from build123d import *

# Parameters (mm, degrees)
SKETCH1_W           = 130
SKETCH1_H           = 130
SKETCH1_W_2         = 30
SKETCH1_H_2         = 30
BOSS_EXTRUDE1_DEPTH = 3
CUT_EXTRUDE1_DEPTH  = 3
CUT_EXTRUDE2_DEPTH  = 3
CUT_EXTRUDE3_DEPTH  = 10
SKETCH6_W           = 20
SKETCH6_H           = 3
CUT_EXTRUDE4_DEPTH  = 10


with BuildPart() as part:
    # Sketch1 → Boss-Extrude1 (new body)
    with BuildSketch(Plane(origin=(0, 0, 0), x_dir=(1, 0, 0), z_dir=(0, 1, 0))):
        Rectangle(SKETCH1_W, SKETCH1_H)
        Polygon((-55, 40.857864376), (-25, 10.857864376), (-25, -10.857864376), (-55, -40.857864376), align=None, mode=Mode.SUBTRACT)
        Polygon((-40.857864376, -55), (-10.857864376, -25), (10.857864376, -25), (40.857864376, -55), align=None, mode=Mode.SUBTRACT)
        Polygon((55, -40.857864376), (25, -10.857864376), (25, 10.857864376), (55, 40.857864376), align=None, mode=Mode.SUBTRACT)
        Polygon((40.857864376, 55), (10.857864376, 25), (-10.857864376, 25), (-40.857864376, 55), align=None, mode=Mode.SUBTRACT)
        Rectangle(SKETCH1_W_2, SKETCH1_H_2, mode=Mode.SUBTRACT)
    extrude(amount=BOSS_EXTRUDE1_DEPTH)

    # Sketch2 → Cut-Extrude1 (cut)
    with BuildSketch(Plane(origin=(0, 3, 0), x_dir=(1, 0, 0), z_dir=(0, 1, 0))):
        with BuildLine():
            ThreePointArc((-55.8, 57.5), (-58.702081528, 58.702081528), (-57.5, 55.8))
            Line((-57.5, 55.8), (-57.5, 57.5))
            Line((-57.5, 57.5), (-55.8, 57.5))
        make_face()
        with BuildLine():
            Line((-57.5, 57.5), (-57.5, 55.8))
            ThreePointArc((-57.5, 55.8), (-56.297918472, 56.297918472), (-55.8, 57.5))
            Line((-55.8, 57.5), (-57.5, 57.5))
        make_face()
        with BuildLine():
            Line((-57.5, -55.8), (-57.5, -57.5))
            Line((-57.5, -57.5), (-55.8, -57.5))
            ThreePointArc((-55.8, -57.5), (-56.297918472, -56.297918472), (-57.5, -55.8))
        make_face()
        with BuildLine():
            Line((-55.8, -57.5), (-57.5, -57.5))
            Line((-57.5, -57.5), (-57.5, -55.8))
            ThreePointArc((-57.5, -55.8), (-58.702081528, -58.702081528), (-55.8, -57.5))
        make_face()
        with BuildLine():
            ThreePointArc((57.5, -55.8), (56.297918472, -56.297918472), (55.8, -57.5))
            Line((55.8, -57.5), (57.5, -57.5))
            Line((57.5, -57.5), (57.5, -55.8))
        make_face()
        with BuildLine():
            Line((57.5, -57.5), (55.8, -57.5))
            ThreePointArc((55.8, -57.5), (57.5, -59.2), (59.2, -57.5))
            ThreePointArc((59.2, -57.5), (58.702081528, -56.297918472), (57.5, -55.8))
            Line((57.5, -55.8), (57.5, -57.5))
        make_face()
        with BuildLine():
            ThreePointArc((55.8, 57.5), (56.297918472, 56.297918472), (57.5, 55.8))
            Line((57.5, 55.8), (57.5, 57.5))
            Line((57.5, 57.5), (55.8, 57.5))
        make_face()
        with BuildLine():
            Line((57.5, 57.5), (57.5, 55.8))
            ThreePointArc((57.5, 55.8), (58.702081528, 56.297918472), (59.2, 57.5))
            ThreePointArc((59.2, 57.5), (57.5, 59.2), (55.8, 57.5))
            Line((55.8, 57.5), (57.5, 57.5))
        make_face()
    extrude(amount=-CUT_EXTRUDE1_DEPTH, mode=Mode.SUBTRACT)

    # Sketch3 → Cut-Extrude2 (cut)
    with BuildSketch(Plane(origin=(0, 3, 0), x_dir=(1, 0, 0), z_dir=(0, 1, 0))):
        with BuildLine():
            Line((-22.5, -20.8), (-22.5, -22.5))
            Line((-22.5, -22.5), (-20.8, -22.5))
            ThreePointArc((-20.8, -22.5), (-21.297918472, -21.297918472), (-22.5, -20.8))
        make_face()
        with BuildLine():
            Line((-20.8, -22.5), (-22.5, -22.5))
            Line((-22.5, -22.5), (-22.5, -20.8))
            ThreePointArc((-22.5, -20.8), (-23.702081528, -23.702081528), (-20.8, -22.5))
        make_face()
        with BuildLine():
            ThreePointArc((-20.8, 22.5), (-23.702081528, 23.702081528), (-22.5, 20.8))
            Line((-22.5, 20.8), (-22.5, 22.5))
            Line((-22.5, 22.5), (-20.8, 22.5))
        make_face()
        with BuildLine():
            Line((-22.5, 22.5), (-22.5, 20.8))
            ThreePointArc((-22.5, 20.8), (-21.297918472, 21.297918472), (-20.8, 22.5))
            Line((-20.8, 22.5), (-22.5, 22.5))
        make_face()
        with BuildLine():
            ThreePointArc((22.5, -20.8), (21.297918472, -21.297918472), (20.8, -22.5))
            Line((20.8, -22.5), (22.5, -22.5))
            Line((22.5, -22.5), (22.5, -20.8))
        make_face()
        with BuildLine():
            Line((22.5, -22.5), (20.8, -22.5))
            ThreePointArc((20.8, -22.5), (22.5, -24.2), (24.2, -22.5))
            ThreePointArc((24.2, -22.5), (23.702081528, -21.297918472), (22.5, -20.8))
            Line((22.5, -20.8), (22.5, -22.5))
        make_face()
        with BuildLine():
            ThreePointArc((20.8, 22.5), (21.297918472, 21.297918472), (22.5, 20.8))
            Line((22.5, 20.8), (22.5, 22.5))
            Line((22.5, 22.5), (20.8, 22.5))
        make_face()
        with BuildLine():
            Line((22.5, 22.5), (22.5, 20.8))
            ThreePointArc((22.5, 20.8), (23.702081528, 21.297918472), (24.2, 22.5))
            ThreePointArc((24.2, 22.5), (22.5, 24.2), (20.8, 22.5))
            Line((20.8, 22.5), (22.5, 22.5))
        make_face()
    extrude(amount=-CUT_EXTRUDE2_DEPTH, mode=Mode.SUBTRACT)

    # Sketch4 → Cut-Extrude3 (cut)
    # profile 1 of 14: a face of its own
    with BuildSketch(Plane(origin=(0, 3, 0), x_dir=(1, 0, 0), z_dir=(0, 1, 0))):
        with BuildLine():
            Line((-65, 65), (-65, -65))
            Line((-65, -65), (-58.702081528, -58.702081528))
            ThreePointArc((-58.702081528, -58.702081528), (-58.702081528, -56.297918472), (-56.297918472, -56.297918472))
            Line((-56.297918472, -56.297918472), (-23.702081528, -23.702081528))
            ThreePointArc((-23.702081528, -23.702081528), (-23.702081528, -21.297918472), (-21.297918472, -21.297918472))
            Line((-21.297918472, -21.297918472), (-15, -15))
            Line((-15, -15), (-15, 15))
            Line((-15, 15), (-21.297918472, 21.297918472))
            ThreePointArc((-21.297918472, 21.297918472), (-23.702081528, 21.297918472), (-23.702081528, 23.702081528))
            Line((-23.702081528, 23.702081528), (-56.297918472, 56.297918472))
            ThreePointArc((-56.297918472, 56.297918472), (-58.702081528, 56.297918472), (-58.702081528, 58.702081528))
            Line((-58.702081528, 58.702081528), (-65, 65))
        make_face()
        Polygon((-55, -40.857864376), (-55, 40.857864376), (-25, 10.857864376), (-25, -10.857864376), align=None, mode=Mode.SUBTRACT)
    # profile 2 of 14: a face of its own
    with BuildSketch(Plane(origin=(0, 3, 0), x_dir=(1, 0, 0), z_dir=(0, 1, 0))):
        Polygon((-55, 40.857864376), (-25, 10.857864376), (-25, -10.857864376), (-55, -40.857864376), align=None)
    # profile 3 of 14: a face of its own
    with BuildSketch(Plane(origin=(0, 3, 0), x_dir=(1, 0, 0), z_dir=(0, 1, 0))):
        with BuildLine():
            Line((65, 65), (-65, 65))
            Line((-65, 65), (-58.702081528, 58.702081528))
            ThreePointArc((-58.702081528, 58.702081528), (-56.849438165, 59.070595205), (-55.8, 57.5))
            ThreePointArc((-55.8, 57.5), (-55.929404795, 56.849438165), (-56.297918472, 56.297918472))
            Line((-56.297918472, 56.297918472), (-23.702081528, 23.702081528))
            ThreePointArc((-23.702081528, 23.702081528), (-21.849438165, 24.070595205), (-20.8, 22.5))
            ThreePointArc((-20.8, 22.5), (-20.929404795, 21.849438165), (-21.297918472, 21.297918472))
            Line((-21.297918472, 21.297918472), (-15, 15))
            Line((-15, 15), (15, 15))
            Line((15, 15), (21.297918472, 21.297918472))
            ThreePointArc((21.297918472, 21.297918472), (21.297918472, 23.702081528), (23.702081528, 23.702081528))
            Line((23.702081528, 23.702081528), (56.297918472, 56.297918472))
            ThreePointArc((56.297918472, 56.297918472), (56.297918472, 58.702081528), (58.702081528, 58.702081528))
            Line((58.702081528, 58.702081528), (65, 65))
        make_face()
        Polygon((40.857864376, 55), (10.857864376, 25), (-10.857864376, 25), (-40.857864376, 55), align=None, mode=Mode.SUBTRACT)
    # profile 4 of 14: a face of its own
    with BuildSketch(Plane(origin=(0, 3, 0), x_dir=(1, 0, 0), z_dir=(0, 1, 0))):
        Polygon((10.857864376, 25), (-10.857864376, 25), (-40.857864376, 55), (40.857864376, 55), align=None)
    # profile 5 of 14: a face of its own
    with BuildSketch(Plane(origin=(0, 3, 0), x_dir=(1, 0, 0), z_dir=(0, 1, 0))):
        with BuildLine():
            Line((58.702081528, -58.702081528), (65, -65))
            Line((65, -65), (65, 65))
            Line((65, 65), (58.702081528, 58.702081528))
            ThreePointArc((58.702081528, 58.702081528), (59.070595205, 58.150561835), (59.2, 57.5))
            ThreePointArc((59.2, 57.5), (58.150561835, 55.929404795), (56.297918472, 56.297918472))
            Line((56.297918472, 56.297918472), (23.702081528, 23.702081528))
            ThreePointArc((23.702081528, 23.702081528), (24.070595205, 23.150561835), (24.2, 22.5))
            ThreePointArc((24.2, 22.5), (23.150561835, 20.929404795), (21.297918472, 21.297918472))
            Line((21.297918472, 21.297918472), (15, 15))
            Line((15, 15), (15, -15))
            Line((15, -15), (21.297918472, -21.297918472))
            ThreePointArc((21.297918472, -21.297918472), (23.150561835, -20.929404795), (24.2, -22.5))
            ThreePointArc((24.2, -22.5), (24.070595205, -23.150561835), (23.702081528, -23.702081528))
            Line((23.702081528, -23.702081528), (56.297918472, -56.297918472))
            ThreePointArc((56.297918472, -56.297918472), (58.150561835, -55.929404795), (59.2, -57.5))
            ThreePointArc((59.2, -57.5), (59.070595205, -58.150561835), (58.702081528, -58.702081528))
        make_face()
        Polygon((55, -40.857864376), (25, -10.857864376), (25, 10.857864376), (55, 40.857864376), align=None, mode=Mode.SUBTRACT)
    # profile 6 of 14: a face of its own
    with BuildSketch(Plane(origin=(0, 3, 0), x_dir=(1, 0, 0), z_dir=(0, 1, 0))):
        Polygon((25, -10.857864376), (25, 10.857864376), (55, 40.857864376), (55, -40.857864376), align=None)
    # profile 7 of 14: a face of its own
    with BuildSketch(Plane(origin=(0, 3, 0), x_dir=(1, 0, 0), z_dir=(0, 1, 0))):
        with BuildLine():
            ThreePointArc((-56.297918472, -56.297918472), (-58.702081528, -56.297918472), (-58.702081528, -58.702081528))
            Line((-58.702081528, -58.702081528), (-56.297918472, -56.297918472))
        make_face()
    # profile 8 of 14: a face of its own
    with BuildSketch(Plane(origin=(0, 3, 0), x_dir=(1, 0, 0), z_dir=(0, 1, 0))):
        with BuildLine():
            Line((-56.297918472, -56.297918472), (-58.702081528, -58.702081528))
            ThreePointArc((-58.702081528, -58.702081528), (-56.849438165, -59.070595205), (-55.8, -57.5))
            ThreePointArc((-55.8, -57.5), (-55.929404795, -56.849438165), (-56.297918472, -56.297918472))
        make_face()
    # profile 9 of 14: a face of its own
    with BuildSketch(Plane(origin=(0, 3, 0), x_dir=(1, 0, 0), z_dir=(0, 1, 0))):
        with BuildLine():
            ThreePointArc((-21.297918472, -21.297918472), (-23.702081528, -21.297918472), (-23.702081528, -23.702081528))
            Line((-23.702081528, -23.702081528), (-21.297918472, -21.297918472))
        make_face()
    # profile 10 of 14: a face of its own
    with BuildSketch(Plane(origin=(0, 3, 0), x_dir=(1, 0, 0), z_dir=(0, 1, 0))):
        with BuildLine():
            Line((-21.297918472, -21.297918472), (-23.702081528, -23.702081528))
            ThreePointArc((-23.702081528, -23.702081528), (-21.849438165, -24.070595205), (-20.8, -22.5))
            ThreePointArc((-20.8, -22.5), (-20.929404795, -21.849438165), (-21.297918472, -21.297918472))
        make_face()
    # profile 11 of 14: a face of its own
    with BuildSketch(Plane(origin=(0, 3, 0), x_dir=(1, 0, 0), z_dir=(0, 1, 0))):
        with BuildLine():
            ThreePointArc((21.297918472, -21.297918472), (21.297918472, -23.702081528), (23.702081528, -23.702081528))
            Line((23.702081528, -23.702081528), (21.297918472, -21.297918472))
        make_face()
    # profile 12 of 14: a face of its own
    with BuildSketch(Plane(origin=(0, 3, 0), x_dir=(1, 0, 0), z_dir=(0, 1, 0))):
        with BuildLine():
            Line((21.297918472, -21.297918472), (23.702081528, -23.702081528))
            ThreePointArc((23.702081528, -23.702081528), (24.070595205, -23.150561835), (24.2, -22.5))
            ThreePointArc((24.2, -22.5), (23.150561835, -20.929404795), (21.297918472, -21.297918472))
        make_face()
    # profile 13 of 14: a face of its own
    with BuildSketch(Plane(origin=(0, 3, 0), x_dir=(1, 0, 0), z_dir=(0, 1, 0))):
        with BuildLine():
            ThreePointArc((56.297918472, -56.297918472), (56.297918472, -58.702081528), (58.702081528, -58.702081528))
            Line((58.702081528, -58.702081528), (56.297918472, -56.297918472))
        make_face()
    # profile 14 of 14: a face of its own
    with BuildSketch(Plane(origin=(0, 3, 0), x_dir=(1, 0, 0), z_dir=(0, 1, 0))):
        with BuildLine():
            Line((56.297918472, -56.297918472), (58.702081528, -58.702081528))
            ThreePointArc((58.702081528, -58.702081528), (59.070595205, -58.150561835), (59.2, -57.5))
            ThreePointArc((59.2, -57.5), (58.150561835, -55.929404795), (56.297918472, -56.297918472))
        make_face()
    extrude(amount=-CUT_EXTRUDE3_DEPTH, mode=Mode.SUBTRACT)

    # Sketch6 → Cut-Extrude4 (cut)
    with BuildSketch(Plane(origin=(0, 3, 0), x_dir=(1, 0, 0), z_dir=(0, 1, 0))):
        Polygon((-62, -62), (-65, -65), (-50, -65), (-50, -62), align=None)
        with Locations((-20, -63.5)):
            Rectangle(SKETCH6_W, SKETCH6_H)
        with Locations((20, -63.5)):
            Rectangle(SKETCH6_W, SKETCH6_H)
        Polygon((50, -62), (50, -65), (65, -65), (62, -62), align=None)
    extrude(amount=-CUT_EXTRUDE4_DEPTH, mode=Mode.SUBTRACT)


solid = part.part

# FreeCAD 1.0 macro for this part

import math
import FreeCAD as App
import Part
import Sketcher
Q = App.Units.Quantity

doc = App.newDocument("Part")
body = doc.addObject("PartDesign::Body", "Body")

sketch1 = body.newObject("Sketcher::SketchObject", "Sketch")
sketch1.AttachmentSupport = (doc.getObject("XZ_Plane"), [""])
sketch1.MapMode = "FlatFace"
sketch1.addGeometry([
    Part.LineSegment(App.Vector(-65, -65, 0), App.Vector(-65, 65, 0)),
    Part.LineSegment(App.Vector(-65, 65, 0), App.Vector(65, 65, 0)),
    Part.LineSegment(App.Vector(65, 65, 0), App.Vector(65, -65, 0)),
    Part.LineSegment(App.Vector(65, -65, 0), App.Vector(-65, -65, 0)),
    Part.LineSegment(App.Vector(40.857864, 55, 0), App.Vector(-40.857864, 55, 0)),
    Part.LineSegment(App.Vector(-40.857864, 55, 0), App.Vector(-10.857864, 25, 0)),
    Part.LineSegment(App.Vector(-10.857864, 25, 0), App.Vector(10.857864, 25, 0)),
    Part.LineSegment(App.Vector(10.857864, 25, 0), App.Vector(40.857864, 55, 0)),
    Part.LineSegment(App.Vector(-55, 40.857864, 0), App.Vector(-55, -40.857864, 0)),
    Part.LineSegment(App.Vector(-55, -40.857864, 0), App.Vector(-25, -10.857864, 0)),
    Part.LineSegment(App.Vector(-25, -10.857864, 0), App.Vector(-25, 10.857864, 0)),
    Part.LineSegment(App.Vector(-25, 10.857864, 0), App.Vector(-55, 40.857864, 0)),
    Part.LineSegment(App.Vector(15, 15, 0), App.Vector(-15, 15, 0)),
    Part.LineSegment(App.Vector(-15, 15, 0), App.Vector(-15, -15, 0)),
    Part.LineSegment(App.Vector(-15, -15, 0), App.Vector(15, -15, 0)),
    Part.LineSegment(App.Vector(15, -15, 0), App.Vector(15, 15, 0)),
    Part.LineSegment(App.Vector(55, -40.857864, 0), App.Vector(55, 40.857864, 0)),
    Part.LineSegment(App.Vector(55, 40.857864, 0), App.Vector(25, 10.857864, 0)),
    Part.LineSegment(App.Vector(25, 10.857864, 0), App.Vector(25, -10.857864, 0)),
    Part.LineSegment(App.Vector(25, -10.857864, 0), App.Vector(55, -40.857864, 0)),
    Part.LineSegment(App.Vector(-40.857864, -55, 0), App.Vector(40.857864, -55, 0)),
    Part.LineSegment(App.Vector(40.857864, -55, 0), App.Vector(10.857864, -25, 0)),
    Part.LineSegment(App.Vector(10.857864, -25, 0), App.Vector(-10.857864, -25, 0)),
    Part.LineSegment(App.Vector(-10.857864, -25, 0), App.Vector(-40.857864, -55, 0)),
], False)
sketch1.addConstraint([
    Sketcher.Constraint("Coincident", 0, 2, 1, 1),
    Sketcher.Constraint("Coincident", 1, 2, 2, 1),
    Sketcher.Constraint("Coincident", 2, 2, 3, 1),
    Sketcher.Constraint("Coincident", 3, 2, 0, 1),
    Sketcher.Constraint("Coincident", 4, 2, 5, 1),
    Sketcher.Constraint("Coincident", 5, 2, 6, 1),
    Sketcher.Constraint("Coincident", 6, 2, 7, 1),
    Sketcher.Constraint("Coincident", 7, 2, 4, 1),
    Sketcher.Constraint("Coincident", 8, 2, 9, 1),
    Sketcher.Constraint("Coincident", 9, 2, 10, 1),
    Sketcher.Constraint("Coincident", 10, 2, 11, 1),
    Sketcher.Constraint("Coincident", 11, 2, 8, 1),
    Sketcher.Constraint("Coincident", 12, 2, 13, 1),
    Sketcher.Constraint("Coincident", 13, 2, 14, 1),
    Sketcher.Constraint("Coincident", 14, 2, 15, 1),
    Sketcher.Constraint("Coincident", 15, 2, 12, 1),
    Sketcher.Constraint("Coincident", 16, 2, 17, 1),
    Sketcher.Constraint("Coincident", 17, 2, 18, 1),
    Sketcher.Constraint("Coincident", 18, 2, 19, 1),
    Sketcher.Constraint("Coincident", 19, 2, 16, 1),
    Sketcher.Constraint("Coincident", 20, 2, 21, 1),
    Sketcher.Constraint("Coincident", 21, 2, 22, 1),
    Sketcher.Constraint("Coincident", 22, 2, 23, 1),
    Sketcher.Constraint("Coincident", 23, 2, 20, 1),
    Sketcher.Constraint("Vertical", 0),
    Sketcher.Constraint("Horizontal", 1),
    Sketcher.Constraint("Vertical", 2),
    Sketcher.Constraint("Horizontal", 3),
    Sketcher.Constraint("Horizontal", 4),
    Sketcher.Constraint("Horizontal", 6),
    Sketcher.Constraint("Vertical", 8),
    Sketcher.Constraint("Vertical", 10),
    Sketcher.Constraint("Horizontal", 12),
    Sketcher.Constraint("Vertical", 13),
    Sketcher.Constraint("Horizontal", 14),
    Sketcher.Constraint("Vertical", 15),
    Sketcher.Constraint("Vertical", 16),
    Sketcher.Constraint("Vertical", 18),
    Sketcher.Constraint("Horizontal", 20),
    Sketcher.Constraint("Horizontal", 22),
    Sketcher.Constraint("Symmetric", 0, 2, 2, 2, -1, 1),
    Sketcher.Constraint("Symmetric", 12, 2, 14, 2, -1, 1),
    Sketcher.Constraint("Symmetric", 8, 2, 16, 2, -1, 1),
    Sketcher.Constraint("Symmetric", 9, 2, 17, 2, -1, 1),
    Sketcher.Constraint("Symmetric", 4, 2, 20, 2, -1, 1),
    Sketcher.Constraint("Symmetric", 5, 2, 21, 2, -1, 1),
    Sketcher.Constraint("Perpendicular", 5, 7),
    Sketcher.Constraint("Parallel", 7, 9),
    Sketcher.Constraint("Perpendicular", 9, 11),
    Sketcher.Constraint("Perpendicular", 17, 19),
    Sketcher.Constraint("Perpendicular", 21, 23),
    Sketcher.Constraint("Horizontal", 11, 2, 16, 2),
    Sketcher.Constraint("Horizontal", 10, 2, 17, 2),
    Sketcher.Constraint("Horizontal", 9, 2, 18, 2),
    Sketcher.Constraint("Vertical", 7, 2, 20, 2),
    Sketcher.Constraint("Vertical", 5, 2, 22, 2),
    Sketcher.Constraint("Equal", 3, 0),
    Sketcher.Constraint("Equal", 20, 8),
    Sketcher.Constraint("Equal", 22, 10),
    Sketcher.Constraint("Equal", 14, 13),
    Sketcher.Constraint("DistanceX", 1, 1, 1, 2, Q("130 mm")),
    Sketcher.Constraint("DistanceX", 12, 2, 12, 1, Q("30 mm")),
    Sketcher.Constraint("DistanceY", -1, 1, 4, 2, Q("55 mm")),
    Sketcher.Constraint("DistanceY", -1, 1, 5, 2, Q("25 mm")),
    Sketcher.Constraint("DistanceX", 8, 2, -1, 1, Q("55 mm")),
    Sketcher.Constraint("DistanceX", 4, 2, 4, 1, Q("81.715729 mm")),
])
pad1 = body.newObject("PartDesign::Pad", "Pad")
pad1.Profile = sketch1
pad1.Length = 3
pad1.Reversed = True

sketch2 = body.newObject("Sketcher::SketchObject", "Sketch001")
sketch2.AttachmentSupport = (doc.getObject("XZ_Plane"), [""])
sketch2.MapMode = "FlatFace"
sketch2.AttachmentOffset = App.Placement(App.Vector(0, 0, -3), App.Rotation())
sketch2.addGeometry([
    Part.ArcOfCircle(Part.Circle(App.Vector(-57.5, -57.5, 0), App.Vector(0, 0, 1), 1.7), math.radians(90), math.radians(360)),
    Part.ArcOfCircle(Part.Circle(App.Vector(-57.5, -57.5, 0), App.Vector(0, 0, 1), 1.7), math.radians(0), math.radians(90)),
    Part.ArcOfCircle(Part.Circle(App.Vector(-57.5, 57.5, 0), App.Vector(0, 0, 1), 1.7), math.radians(-90), math.radians(0)),
    Part.ArcOfCircle(Part.Circle(App.Vector(-57.5, 57.5, 0), App.Vector(0, 0, 1), 1.7), math.radians(0), math.radians(270)),
    Part.ArcOfCircle(Part.Circle(App.Vector(57.5, 57.5, 0), App.Vector(0, 0, 1), 1.7), math.radians(180), math.radians(270)),
    Part.ArcOfCircle(Part.Circle(App.Vector(57.5, 57.5, 0), App.Vector(0, 0, 1), 1.7), math.radians(0), math.radians(180)),
    Part.ArcOfCircle(Part.Circle(App.Vector(57.5, 57.5, 0), App.Vector(0, 0, 1), 1.7), math.radians(-90), math.radians(0)),
    Part.ArcOfCircle(Part.Circle(App.Vector(57.5, -57.5, 0), App.Vector(0, 0, 1), 1.7), math.radians(90), math.radians(180)),
    Part.ArcOfCircle(Part.Circle(App.Vector(57.5, -57.5, 0), App.Vector(0, 0, 1), 1.7), math.radians(0), math.radians(90)),
    Part.ArcOfCircle(Part.Circle(App.Vector(57.5, -57.5, 0), App.Vector(0, 0, 1), 1.7), math.radians(180), math.radians(360)),
], False)
sketch2.addConstraint([
    Sketcher.Constraint("Tangent", 0, 1, 1, 2),
    Sketcher.Constraint("Coincident", 1, 1, 0, 2),
    Sketcher.Constraint("Tangent", 2, 1, 3, 2),
    Sketcher.Constraint("Coincident", 3, 1, 2, 2),
    Sketcher.Constraint("Tangent", 4, 1, 5, 2),
    Sketcher.Constraint("Tangent", 5, 1, 6, 2),
    Sketcher.Constraint("Tangent", 6, 1, 4, 2),
    Sketcher.Constraint("Tangent", 7, 1, 8, 2),
    Sketcher.Constraint("Tangent", 8, 1, 9, 2),
    Sketcher.Constraint("Tangent", 9, 1, 7, 2),
    Sketcher.Constraint("Equal", 1, 2),
    Sketcher.Constraint("Equal", 3, 4),
    Sketcher.Constraint("Equal", 6, 7),
    Sketcher.Constraint("Symmetric", 0, 3, 4, 3, -1, 1),
    Sketcher.Constraint("Symmetric", 2, 3, 7, 3, -1, 1),
    Sketcher.Constraint("Symmetric", 2, 3, 4, 3, -2),
    Sketcher.Constraint("Horizontal", 9, 3, 1, 1),
    Sketcher.Constraint("Horizontal", 6, 3, 3, 1),
    Sketcher.Constraint("Horizontal", 3, 1, 4, 1),
    Sketcher.Constraint("Horizontal", 4, 1, 5, 1),
    Sketcher.Constraint("Horizontal", 1, 1, 8, 1),
    Sketcher.Constraint("Horizontal", 8, 1, 9, 1),
    Sketcher.Constraint("Vertical", 3, 3, 0, 1),
    Sketcher.Constraint("Vertical", 0, 1, 2, 1),
    Sketcher.Constraint("Vertical", 9, 3, 6, 1),
    Sketcher.Constraint("Vertical", 6, 1, 7, 1),
    Sketcher.Constraint("Radius", 0, Q("1.7 mm")),
    Sketcher.Constraint("DistanceY", 0, 3, 2, 3, Q("115 mm")),
    Sketcher.Constraint("DistanceX", 2, 3, 4, 3, Q("115 mm")),
])
pocket1 = body.newObject("PartDesign::Pocket", "Pocket")
pocket1.Profile = sketch2
pocket1.Length = 3
pocket1.Reversed = True

sketch3 = body.newObject("Sketcher::SketchObject", "Sketch002")
sketch3.AttachmentSupport = (doc.getObject("XZ_Plane"), [""])
sketch3.MapMode = "FlatFace"
sketch3.AttachmentOffset = App.Placement(App.Vector(0, 0, -3), App.Rotation())
sketch3.addGeometry([
    Part.ArcOfCircle(Part.Circle(App.Vector(-22.5, 22.5, 0), App.Vector(0, 0, 1), 1.7), math.radians(-90), math.radians(0)),
    Part.ArcOfCircle(Part.Circle(App.Vector(-22.5, 22.5, 0), App.Vector(0, 0, 1), 1.7), math.radians(0), math.radians(270)),
    Part.ArcOfCircle(Part.Circle(App.Vector(-22.5, -22.5, 0), App.Vector(0, 0, 1), 1.7), math.radians(90), math.radians(360)),
    Part.ArcOfCircle(Part.Circle(App.Vector(-22.5, -22.5, 0), App.Vector(0, 0, 1), 1.7), math.radians(0), math.radians(90)),
    Part.ArcOfCircle(Part.Circle(App.Vector(22.5, 22.5, 0), App.Vector(0, 0, 1), 1.7), math.radians(180), math.radians(270)),
    Part.ArcOfCircle(Part.Circle(App.Vector(22.5, 22.5, 0), App.Vector(0, 0, 1), 1.7), math.radians(0), math.radians(180)),
    Part.ArcOfCircle(Part.Circle(App.Vector(22.5, 22.5, 0), App.Vector(0, 0, 1), 1.7), math.radians(-90), math.radians(0)),
    Part.ArcOfCircle(Part.Circle(App.Vector(22.5, -22.5, 0), App.Vector(0, 0, 1), 1.7), math.radians(90), math.radians(180)),
    Part.ArcOfCircle(Part.Circle(App.Vector(22.5, -22.5, 0), App.Vector(0, 0, 1), 1.7), math.radians(0), math.radians(90)),
    Part.ArcOfCircle(Part.Circle(App.Vector(22.5, -22.5, 0), App.Vector(0, 0, 1), 1.7), math.radians(180), math.radians(360)),
], False)
sketch3.addConstraint([
    Sketcher.Constraint("Tangent", 0, 1, 1, 2),
    Sketcher.Constraint("Coincident", 1, 1, 0, 2),
    Sketcher.Constraint("Tangent", 2, 1, 3, 2),
    Sketcher.Constraint("Coincident", 3, 1, 2, 2),
    Sketcher.Constraint("Tangent", 4, 1, 5, 2),
    Sketcher.Constraint("Tangent", 5, 1, 6, 2),
    Sketcher.Constraint("Tangent", 6, 1, 4, 2),
    Sketcher.Constraint("Tangent", 7, 1, 8, 2),
    Sketcher.Constraint("Tangent", 8, 1, 9, 2),
    Sketcher.Constraint("Tangent", 9, 1, 7, 2),
    Sketcher.Constraint("Equal", 1, 2),
    Sketcher.Constraint("Equal", 3, 4),
    Sketcher.Constraint("Equal", 6, 7),
    Sketcher.Constraint("Symmetric", 2, 3, 4, 3, -1, 1),
    Sketcher.Constraint("Symmetric", 0, 3, 7, 3, -1, 1),
    Sketcher.Constraint("Symmetric", 0, 3, 4, 3, -2),
    Sketcher.Constraint("Horizontal", 6, 3, 1, 1),
    Sketcher.Constraint("Horizontal", 9, 3, 3, 1),
    Sketcher.Constraint("Horizontal", 1, 1, 4, 1),
    Sketcher.Constraint("Horizontal", 4, 1, 5, 1),
    Sketcher.Constraint("Horizontal", 3, 1, 8, 1),
    Sketcher.Constraint("Horizontal", 8, 1, 9, 1),
    Sketcher.Constraint("Vertical", 3, 3, 0, 1),
    Sketcher.Constraint("Vertical", 0, 1, 2, 1),
    Sketcher.Constraint("Vertical", 9, 3, 6, 1),
    Sketcher.Constraint("Vertical", 6, 1, 7, 1),
    Sketcher.Constraint("Radius", 0, Q("1.7 mm")),
    Sketcher.Constraint("DistanceY", 2, 3, 0, 3, Q("45 mm")),
    Sketcher.Constraint("DistanceX", 0, 3, 4, 3, Q("45 mm")),
])
pocket2 = body.newObject("PartDesign::Pocket", "Pocket001")
pocket2.Profile = sketch3
pocket2.Length = 3
pocket2.Reversed = True

sketch4 = body.newObject("Sketcher::SketchObject", "Sketch003")
sketch4.AttachmentSupport = (doc.getObject("XZ_Plane"), [""])
sketch4.MapMode = "FlatFace"
sketch4.AttachmentOffset = App.Placement(App.Vector(0, 0, -3), App.Rotation())
sketch4.addGeometry([
    Part.LineSegment(App.Vector(-65, -65, 0), App.Vector(-65, 65, 0)),
    Part.LineSegment(App.Vector(-65, 65, 0), App.Vector(-58.702082, 58.702082, 0)),
    Part.ArcOfCircle(Part.Circle(App.Vector(-57.5, 57.5, 0), App.Vector(0, 0, 1), 1.7), math.radians(0), math.radians(135)),
    Part.ArcOfCircle(Part.Circle(App.Vector(-57.5, 57.5, 0), App.Vector(0, 0, 1), 1.7), math.radians(-45), math.radians(0)),
    Part.LineSegment(App.Vector(-56.297918, 56.297918, 0), App.Vector(-23.702082, 23.702082, 0)),
    Part.ArcOfCircle(Part.Circle(App.Vector(-22.5, 22.5, 0), App.Vector(0, 0, 1), 1.7), math.radians(0), math.radians(135)),
    Part.ArcOfCircle(Part.Circle(App.Vector(-22.5, 22.5, 0), App.Vector(0, 0, 1), 1.7), math.radians(-45), math.radians(0)),
    Part.LineSegment(App.Vector(-21.297918, 21.297918, 0), App.Vector(-15, 15, 0)),
    Part.LineSegment(App.Vector(-15, 15, 0), App.Vector(-15, -15, 0)),
    Part.LineSegment(App.Vector(-15, -15, 0), App.Vector(15, -15, 0)),
    Part.LineSegment(App.Vector(15, -15, 0), App.Vector(15, 15, 0)),
    Part.LineSegment(App.Vector(15, 15, 0), App.Vector(21.297918, 21.297918, 0)),
    Part.ArcOfCircle(Part.Circle(App.Vector(22.5, 22.5, 0), App.Vector(0, 0, 1), 1.7), math.radians(45), math.radians(225)),
    Part.LineSegment(App.Vector(23.702082, 23.702082, 0), App.Vector(56.297918, 56.297918, 0)),
    Part.ArcOfCircle(Part.Circle(App.Vector(57.5, 57.5, 0), App.Vector(0, 0, 1), 1.7), math.radians(45), math.radians(225)),
    Part.LineSegment(App.Vector(58.702082, 58.702082, 0), App.Vector(65, 65, 0)),
    Part.LineSegment(App.Vector(65, 65, 0), App.Vector(65, -65, 0)),
    Part.LineSegment(App.Vector(65, -65, 0), App.Vector(-65, -65, 0)),
    Part.ArcOfCircle(Part.Circle(App.Vector(-57.5, -57.5, 0), App.Vector(0, 0, 1), 1.7), math.radians(45), math.radians(225)),
    Part.ArcOfCircle(Part.Circle(App.Vector(-57.5, -57.5, 0), App.Vector(0, 0, 1), 1.7), math.radians(-135), math.radians(0)),
    Part.ArcOfCircle(Part.Circle(App.Vector(-57.5, -57.5, 0), App.Vector(0, 0, 1), 1.7), math.radians(0), math.radians(45)),
    Part.ArcOfCircle(Part.Circle(App.Vector(-22.5, -22.5, 0), App.Vector(0, 0, 1), 1.7), math.radians(45), math.radians(225)),
    Part.ArcOfCircle(Part.Circle(App.Vector(-22.5, -22.5, 0), App.Vector(0, 0, 1), 1.7), math.radians(-135), math.radians(0)),
    Part.ArcOfCircle(Part.Circle(App.Vector(-22.5, -22.5, 0), App.Vector(0, 0, 1), 1.7), math.radians(0), math.radians(45)),
    Part.ArcOfCircle(Part.Circle(App.Vector(57.5, -57.5, 0), App.Vector(0, 0, 1), 1.7), math.radians(135), math.radians(315)),
    Part.ArcOfCircle(Part.Circle(App.Vector(57.5, -57.5, 0), App.Vector(0, 0, 1), 1.7), math.radians(-45), math.radians(0)),
    Part.ArcOfCircle(Part.Circle(App.Vector(57.5, -57.5, 0), App.Vector(0, 0, 1), 1.7), math.radians(0), math.radians(135)),
    Part.ArcOfCircle(Part.Circle(App.Vector(22.5, -22.5, 0), App.Vector(0, 0, 1), 1.7), math.radians(135), math.radians(315)),
    Part.ArcOfCircle(Part.Circle(App.Vector(22.5, -22.5, 0), App.Vector(0, 0, 1), 1.7), math.radians(-45), math.radians(0)),
    Part.ArcOfCircle(Part.Circle(App.Vector(22.5, -22.5, 0), App.Vector(0, 0, 1), 1.7), math.radians(0), math.radians(135)),
], False)
sketch4.addConstraint([
    Sketcher.Constraint("Coincident", 0, 2, 1, 1),
    Sketcher.Constraint("Coincident", 1, 2, 2, 2),
    Sketcher.Constraint("Tangent", 2, 1, 3, 2),
    Sketcher.Constraint("Coincident", 3, 1, 4, 1),
    Sketcher.Constraint("Coincident", 4, 2, 5, 2),
    Sketcher.Constraint("Tangent", 5, 1, 6, 2),
    Sketcher.Constraint("Coincident", 6, 1, 7, 1),
    Sketcher.Constraint("Coincident", 7, 2, 8, 1),
    Sketcher.Constraint("Coincident", 8, 2, 9, 1),
    Sketcher.Constraint("Coincident", 9, 2, 10, 1),
    Sketcher.Constraint("Coincident", 10, 2, 11, 1),
    Sketcher.Constraint("Coincident", 11, 2, 12, 2),
    Sketcher.Constraint("Coincident", 12, 1, 13, 1),
    Sketcher.Constraint("Coincident", 13, 2, 14, 2),
    Sketcher.Constraint("Coincident", 14, 1, 15, 1),
    Sketcher.Constraint("Coincident", 15, 2, 16, 1),
    Sketcher.Constraint("Coincident", 16, 2, 17, 1),
    Sketcher.Constraint("Coincident", 17, 2, 0, 1),
    Sketcher.Constraint("Tangent", 18, 2, 19, 1),
    Sketcher.Constraint("Tangent", 19, 2, 20, 1),
    Sketcher.Constraint("Tangent", 20, 2, 18, 1),
    Sketcher.Constraint("Tangent", 21, 2, 22, 1),
    Sketcher.Constraint("Tangent", 22, 2, 23, 1),
    Sketcher.Constraint("Tangent", 23, 2, 21, 1),
    Sketcher.Constraint("Tangent", 24, 2, 25, 1),
    Sketcher.Constraint("Tangent", 25, 2, 26, 1),
    Sketcher.Constraint("Tangent", 26, 2, 24, 1),
    Sketcher.Constraint("Tangent", 27, 2, 28, 1),
    Sketcher.Constraint("Tangent", 28, 2, 29, 1),
    Sketcher.Constraint("Tangent", 29, 2, 27, 1),
    Sketcher.Constraint("Vertical", 0),
    Sketcher.Constraint("Vertical", 8),
    Sketcher.Constraint("Horizontal", 9),
    Sketcher.Constraint("Vertical", 10),
    Sketcher.Constraint("Vertical", 16),
    Sketcher.Constraint("Horizontal", 17),
    Sketcher.Constraint("Equal", 2, 3),
    Sketcher.Constraint("Equal", 3, 5),
    Sketcher.Constraint("Equal", 5, 6),
    Sketcher.Constraint("Equal", 6, 12),
    Sketcher.Constraint("Equal", 12, 14),
    Sketcher.Constraint("Equal", 14, 18),
    Sketcher.Constraint("Equal", 20, 21),
    Sketcher.Constraint("Equal", 23, 24),
    Sketcher.Constraint("Equal", 26, 27),
    Sketcher.Constraint("Symmetric", 14, 3, 18, 3, -1, 1),
    Sketcher.Constraint("Symmetric", 12, 3, 21, 3, -1, 1),
    Sketcher.Constraint("Symmetric", 2, 3, 24, 3, -1, 1),
    Sketcher.Constraint("Symmetric", 5, 3, 27, 3, -1, 1),
    Sketcher.Constraint("Symmetric", 7, 2, 9, 2, -1, 1),
    Sketcher.Constraint("Symmetric", 0, 2, 16, 2, -1, 1),
    Sketcher.Constraint("Symmetric", 5, 3, 12, 3, -2),
    Sketcher.Constraint("Symmetric", 2, 3, 14, 3, -2),
    Sketcher.Constraint("Parallel", 1, 4),
    Sketcher.Constraint("Parallel", 4, 7),
    Sketcher.Constraint("Perpendicular", 7, 11),
    Sketcher.Constraint("Parallel", 11, 13),
    Sketcher.Constraint("Parallel", 13, 15),
    Sketcher.Constraint("Horizontal", 14, 3, 2, 1),
    Sketcher.Constraint("Horizontal", 12, 3, 5, 1),
    Sketcher.Constraint("Horizontal", 7, 2, 10, 2),
    Sketcher.Constraint("Horizontal", 6, 1, 11, 2),
    Sketcher.Constraint("Horizontal", 4, 2, 12, 1),
    Sketcher.Constraint("Horizontal", 1, 2, 14, 1),
    Sketcher.Constraint("Horizontal", 26, 3, 19, 2),
    Sketcher.Constraint("Horizontal", 29, 3, 22, 2),
    Sketcher.Constraint("Horizontal", 18, 2, 24, 2),
    Sketcher.Constraint("Horizontal", 19, 2, 25, 2),
    Sketcher.Constraint("Horizontal", 20, 2, 26, 2),
    Sketcher.Constraint("Horizontal", 21, 2, 27, 2),
    Sketcher.Constraint("Horizontal", 22, 2, 28, 2),
    Sketcher.Constraint("Horizontal", 23, 2, 29, 2),
    Sketcher.Constraint("Vertical", 1, 2, 18, 2),
    Sketcher.Constraint("Vertical", 3, 1, 20, 2),
    Sketcher.Constraint("Vertical", 4, 2, 21, 2),
    Sketcher.Constraint("Vertical", 6, 1, 23, 2),
    Sketcher.Constraint("Equal", 17, 0),
    Sketcher.Constraint("Equal", 9, 8),
    Sketcher.Constraint("Equal", 1, 7),
    Sketcher.Constraint("Radius", 2, Q("1.7 mm")),
    Sketcher.Constraint("DistanceX", 9, 1, 9, 2, Q("30 mm")),
    Sketcher.Constraint("DistanceX", 17, 2, 17, 1, Q("130 mm")),
    Sketcher.Constraint("DistanceX", 2, 3, 5, 3, Q("35 mm")),
    Sketcher.Constraint("DistanceY", 5, 3, 2, 3, Q("35 mm")),
    Sketcher.Constraint("DistanceX", 5, 3, 12, 3, Q("45 mm")),
    Sketcher.Constraint("DistanceX", 11, 2, 13, 2, Q("35 mm")),
])
pocket3 = body.newObject("PartDesign::Pocket", "Pocket002")
pocket3.Profile = sketch4
pocket3.Length = 10
pocket3.Reversed = True

sketch5 = body.newObject("Sketcher::SketchObject", "Sketch004")
sketch5.AttachmentSupport = (doc.getObject("XZ_Plane"), [""])
sketch5.MapMode = "FlatFace"
sketch5.AttachmentOffset = App.Placement(App.Vector(0, 0, -3), App.Rotation())
sketch5.addGeometry([
    Part.LineSegment(App.Vector(-62, 62, 0), App.Vector(-65, 65, 0)),
    Part.LineSegment(App.Vector(-65, 65, 0), App.Vector(-50, 65, 0)),
    Part.LineSegment(App.Vector(-50, 65, 0), App.Vector(-50, 62, 0)),
    Part.LineSegment(App.Vector(-50, 62, 0), App.Vector(-62, 62, 0)),
    Part.LineSegment(App.Vector(-30, 62, 0), App.Vector(-30, 65, 0)),
    Part.LineSegment(App.Vector(-30, 65, 0), App.Vector(-10, 65, 0)),
    Part.LineSegment(App.Vector(-10, 65, 0), App.Vector(-10, 62, 0)),
    Part.LineSegment(App.Vector(-10, 62, 0), App.Vector(-30, 62, 0)),
    Part.LineSegment(App.Vector(10, 62, 0), App.Vector(10, 65, 0)),
    Part.LineSegment(App.Vector(10, 65, 0), App.Vector(30, 65, 0)),
    Part.LineSegment(App.Vector(30, 65, 0), App.Vector(30, 62, 0)),
    Part.LineSegment(App.Vector(30, 62, 0), App.Vector(10, 62, 0)),
    Part.LineSegment(App.Vector(50, 62, 0), App.Vector(50, 65, 0)),
    Part.LineSegment(App.Vector(50, 65, 0), App.Vector(65, 65, 0)),
    Part.LineSegment(App.Vector(65, 65, 0), App.Vector(62, 62, 0)),
    Part.LineSegment(App.Vector(62, 62, 0), App.Vector(50, 62, 0)),
], False)
sketch5.addConstraint([
    Sketcher.Constraint("Coincident", 0, 2, 1, 1),
    Sketcher.Constraint("Coincident", 1, 2, 2, 1),
    Sketcher.Constraint("Coincident", 2, 2, 3, 1),
    Sketcher.Constraint("Coincident", 3, 2, 0, 1),
    Sketcher.Constraint("Coincident", 4, 2, 5, 1),
    Sketcher.Constraint("Coincident", 5, 2, 6, 1),
    Sketcher.Constraint("Coincident", 6, 2, 7, 1),
    Sketcher.Constraint("Coincident", 7, 2, 4, 1),
    Sketcher.Constraint("Coincident", 8, 2, 9, 1),
    Sketcher.Constraint("Coincident", 9, 2, 10, 1),
    Sketcher.Constraint("Coincident", 10, 2, 11, 1),
    Sketcher.Constraint("Coincident", 11, 2, 8, 1),
    Sketcher.Constraint("Coincident", 12, 2, 13, 1),
    Sketcher.Constraint("Coincident", 13, 2, 14, 1),
    Sketcher.Constraint("Coincident", 14, 2, 15, 1),
    Sketcher.Constraint("Coincident", 15, 2, 12, 1),
    Sketcher.Constraint("Horizontal", 1),
    Sketcher.Constraint("Vertical", 2),
    Sketcher.Constraint("Horizontal", 3),
    Sketcher.Constraint("Vertical", 4),
    Sketcher.Constraint("Horizontal", 5),
    Sketcher.Constraint("Vertical", 6),
    Sketcher.Constraint("Horizontal", 7),
    Sketcher.Constraint("Vertical", 8),
    Sketcher.Constraint("Horizontal", 9),
    Sketcher.Constraint("Vertical", 10),
    Sketcher.Constraint("Horizontal", 11),
    Sketcher.Constraint("Vertical", 12),
    Sketcher.Constraint("Horizontal", 13),
    Sketcher.Constraint("Horizontal", 15),
    Sketcher.Constraint("Symmetric", 5, 2, 8, 2, -2),
    Sketcher.Constraint("Symmetric", 7, 2, 10, 2, -2),
    Sketcher.Constraint("Symmetric", 1, 2, 12, 2, -2),
    Sketcher.Constraint("Symmetric", 3, 2, 14, 2, -2),
    Sketcher.Constraint("Perpendicular", 0, 14),
    Sketcher.Constraint("Horizontal", 1, 2, 4, 2),
    Sketcher.Constraint("Horizontal", 3, 2, 6, 2),
    Sketcher.Constraint("Equal", 1, 13),
    Sketcher.Constraint("DistanceX", 1, 1, 1, 2, Q("15 mm")),
    Sketcher.Constraint("DistanceX", 3, 2, 3, 1, Q("12 mm")),
    Sketcher.Constraint("DistanceX", 5, 1, 5, 2, Q("20 mm")),
    Sketcher.Constraint("DistanceX", 0, 2, -1, 1, Q("65 mm")),
    Sketcher.Constraint("DistanceY", -1, 1, 0, 2, Q("65 mm")),
    Sketcher.Constraint("DistanceX", 4, 2, -1, 1, Q("30 mm")),
])
pocket4 = body.newObject("PartDesign::Pocket", "Pocket003")
pocket4.Profile = sketch5
pocket4.Length = 10
pocket4.Reversed = True

doc.recompute()
